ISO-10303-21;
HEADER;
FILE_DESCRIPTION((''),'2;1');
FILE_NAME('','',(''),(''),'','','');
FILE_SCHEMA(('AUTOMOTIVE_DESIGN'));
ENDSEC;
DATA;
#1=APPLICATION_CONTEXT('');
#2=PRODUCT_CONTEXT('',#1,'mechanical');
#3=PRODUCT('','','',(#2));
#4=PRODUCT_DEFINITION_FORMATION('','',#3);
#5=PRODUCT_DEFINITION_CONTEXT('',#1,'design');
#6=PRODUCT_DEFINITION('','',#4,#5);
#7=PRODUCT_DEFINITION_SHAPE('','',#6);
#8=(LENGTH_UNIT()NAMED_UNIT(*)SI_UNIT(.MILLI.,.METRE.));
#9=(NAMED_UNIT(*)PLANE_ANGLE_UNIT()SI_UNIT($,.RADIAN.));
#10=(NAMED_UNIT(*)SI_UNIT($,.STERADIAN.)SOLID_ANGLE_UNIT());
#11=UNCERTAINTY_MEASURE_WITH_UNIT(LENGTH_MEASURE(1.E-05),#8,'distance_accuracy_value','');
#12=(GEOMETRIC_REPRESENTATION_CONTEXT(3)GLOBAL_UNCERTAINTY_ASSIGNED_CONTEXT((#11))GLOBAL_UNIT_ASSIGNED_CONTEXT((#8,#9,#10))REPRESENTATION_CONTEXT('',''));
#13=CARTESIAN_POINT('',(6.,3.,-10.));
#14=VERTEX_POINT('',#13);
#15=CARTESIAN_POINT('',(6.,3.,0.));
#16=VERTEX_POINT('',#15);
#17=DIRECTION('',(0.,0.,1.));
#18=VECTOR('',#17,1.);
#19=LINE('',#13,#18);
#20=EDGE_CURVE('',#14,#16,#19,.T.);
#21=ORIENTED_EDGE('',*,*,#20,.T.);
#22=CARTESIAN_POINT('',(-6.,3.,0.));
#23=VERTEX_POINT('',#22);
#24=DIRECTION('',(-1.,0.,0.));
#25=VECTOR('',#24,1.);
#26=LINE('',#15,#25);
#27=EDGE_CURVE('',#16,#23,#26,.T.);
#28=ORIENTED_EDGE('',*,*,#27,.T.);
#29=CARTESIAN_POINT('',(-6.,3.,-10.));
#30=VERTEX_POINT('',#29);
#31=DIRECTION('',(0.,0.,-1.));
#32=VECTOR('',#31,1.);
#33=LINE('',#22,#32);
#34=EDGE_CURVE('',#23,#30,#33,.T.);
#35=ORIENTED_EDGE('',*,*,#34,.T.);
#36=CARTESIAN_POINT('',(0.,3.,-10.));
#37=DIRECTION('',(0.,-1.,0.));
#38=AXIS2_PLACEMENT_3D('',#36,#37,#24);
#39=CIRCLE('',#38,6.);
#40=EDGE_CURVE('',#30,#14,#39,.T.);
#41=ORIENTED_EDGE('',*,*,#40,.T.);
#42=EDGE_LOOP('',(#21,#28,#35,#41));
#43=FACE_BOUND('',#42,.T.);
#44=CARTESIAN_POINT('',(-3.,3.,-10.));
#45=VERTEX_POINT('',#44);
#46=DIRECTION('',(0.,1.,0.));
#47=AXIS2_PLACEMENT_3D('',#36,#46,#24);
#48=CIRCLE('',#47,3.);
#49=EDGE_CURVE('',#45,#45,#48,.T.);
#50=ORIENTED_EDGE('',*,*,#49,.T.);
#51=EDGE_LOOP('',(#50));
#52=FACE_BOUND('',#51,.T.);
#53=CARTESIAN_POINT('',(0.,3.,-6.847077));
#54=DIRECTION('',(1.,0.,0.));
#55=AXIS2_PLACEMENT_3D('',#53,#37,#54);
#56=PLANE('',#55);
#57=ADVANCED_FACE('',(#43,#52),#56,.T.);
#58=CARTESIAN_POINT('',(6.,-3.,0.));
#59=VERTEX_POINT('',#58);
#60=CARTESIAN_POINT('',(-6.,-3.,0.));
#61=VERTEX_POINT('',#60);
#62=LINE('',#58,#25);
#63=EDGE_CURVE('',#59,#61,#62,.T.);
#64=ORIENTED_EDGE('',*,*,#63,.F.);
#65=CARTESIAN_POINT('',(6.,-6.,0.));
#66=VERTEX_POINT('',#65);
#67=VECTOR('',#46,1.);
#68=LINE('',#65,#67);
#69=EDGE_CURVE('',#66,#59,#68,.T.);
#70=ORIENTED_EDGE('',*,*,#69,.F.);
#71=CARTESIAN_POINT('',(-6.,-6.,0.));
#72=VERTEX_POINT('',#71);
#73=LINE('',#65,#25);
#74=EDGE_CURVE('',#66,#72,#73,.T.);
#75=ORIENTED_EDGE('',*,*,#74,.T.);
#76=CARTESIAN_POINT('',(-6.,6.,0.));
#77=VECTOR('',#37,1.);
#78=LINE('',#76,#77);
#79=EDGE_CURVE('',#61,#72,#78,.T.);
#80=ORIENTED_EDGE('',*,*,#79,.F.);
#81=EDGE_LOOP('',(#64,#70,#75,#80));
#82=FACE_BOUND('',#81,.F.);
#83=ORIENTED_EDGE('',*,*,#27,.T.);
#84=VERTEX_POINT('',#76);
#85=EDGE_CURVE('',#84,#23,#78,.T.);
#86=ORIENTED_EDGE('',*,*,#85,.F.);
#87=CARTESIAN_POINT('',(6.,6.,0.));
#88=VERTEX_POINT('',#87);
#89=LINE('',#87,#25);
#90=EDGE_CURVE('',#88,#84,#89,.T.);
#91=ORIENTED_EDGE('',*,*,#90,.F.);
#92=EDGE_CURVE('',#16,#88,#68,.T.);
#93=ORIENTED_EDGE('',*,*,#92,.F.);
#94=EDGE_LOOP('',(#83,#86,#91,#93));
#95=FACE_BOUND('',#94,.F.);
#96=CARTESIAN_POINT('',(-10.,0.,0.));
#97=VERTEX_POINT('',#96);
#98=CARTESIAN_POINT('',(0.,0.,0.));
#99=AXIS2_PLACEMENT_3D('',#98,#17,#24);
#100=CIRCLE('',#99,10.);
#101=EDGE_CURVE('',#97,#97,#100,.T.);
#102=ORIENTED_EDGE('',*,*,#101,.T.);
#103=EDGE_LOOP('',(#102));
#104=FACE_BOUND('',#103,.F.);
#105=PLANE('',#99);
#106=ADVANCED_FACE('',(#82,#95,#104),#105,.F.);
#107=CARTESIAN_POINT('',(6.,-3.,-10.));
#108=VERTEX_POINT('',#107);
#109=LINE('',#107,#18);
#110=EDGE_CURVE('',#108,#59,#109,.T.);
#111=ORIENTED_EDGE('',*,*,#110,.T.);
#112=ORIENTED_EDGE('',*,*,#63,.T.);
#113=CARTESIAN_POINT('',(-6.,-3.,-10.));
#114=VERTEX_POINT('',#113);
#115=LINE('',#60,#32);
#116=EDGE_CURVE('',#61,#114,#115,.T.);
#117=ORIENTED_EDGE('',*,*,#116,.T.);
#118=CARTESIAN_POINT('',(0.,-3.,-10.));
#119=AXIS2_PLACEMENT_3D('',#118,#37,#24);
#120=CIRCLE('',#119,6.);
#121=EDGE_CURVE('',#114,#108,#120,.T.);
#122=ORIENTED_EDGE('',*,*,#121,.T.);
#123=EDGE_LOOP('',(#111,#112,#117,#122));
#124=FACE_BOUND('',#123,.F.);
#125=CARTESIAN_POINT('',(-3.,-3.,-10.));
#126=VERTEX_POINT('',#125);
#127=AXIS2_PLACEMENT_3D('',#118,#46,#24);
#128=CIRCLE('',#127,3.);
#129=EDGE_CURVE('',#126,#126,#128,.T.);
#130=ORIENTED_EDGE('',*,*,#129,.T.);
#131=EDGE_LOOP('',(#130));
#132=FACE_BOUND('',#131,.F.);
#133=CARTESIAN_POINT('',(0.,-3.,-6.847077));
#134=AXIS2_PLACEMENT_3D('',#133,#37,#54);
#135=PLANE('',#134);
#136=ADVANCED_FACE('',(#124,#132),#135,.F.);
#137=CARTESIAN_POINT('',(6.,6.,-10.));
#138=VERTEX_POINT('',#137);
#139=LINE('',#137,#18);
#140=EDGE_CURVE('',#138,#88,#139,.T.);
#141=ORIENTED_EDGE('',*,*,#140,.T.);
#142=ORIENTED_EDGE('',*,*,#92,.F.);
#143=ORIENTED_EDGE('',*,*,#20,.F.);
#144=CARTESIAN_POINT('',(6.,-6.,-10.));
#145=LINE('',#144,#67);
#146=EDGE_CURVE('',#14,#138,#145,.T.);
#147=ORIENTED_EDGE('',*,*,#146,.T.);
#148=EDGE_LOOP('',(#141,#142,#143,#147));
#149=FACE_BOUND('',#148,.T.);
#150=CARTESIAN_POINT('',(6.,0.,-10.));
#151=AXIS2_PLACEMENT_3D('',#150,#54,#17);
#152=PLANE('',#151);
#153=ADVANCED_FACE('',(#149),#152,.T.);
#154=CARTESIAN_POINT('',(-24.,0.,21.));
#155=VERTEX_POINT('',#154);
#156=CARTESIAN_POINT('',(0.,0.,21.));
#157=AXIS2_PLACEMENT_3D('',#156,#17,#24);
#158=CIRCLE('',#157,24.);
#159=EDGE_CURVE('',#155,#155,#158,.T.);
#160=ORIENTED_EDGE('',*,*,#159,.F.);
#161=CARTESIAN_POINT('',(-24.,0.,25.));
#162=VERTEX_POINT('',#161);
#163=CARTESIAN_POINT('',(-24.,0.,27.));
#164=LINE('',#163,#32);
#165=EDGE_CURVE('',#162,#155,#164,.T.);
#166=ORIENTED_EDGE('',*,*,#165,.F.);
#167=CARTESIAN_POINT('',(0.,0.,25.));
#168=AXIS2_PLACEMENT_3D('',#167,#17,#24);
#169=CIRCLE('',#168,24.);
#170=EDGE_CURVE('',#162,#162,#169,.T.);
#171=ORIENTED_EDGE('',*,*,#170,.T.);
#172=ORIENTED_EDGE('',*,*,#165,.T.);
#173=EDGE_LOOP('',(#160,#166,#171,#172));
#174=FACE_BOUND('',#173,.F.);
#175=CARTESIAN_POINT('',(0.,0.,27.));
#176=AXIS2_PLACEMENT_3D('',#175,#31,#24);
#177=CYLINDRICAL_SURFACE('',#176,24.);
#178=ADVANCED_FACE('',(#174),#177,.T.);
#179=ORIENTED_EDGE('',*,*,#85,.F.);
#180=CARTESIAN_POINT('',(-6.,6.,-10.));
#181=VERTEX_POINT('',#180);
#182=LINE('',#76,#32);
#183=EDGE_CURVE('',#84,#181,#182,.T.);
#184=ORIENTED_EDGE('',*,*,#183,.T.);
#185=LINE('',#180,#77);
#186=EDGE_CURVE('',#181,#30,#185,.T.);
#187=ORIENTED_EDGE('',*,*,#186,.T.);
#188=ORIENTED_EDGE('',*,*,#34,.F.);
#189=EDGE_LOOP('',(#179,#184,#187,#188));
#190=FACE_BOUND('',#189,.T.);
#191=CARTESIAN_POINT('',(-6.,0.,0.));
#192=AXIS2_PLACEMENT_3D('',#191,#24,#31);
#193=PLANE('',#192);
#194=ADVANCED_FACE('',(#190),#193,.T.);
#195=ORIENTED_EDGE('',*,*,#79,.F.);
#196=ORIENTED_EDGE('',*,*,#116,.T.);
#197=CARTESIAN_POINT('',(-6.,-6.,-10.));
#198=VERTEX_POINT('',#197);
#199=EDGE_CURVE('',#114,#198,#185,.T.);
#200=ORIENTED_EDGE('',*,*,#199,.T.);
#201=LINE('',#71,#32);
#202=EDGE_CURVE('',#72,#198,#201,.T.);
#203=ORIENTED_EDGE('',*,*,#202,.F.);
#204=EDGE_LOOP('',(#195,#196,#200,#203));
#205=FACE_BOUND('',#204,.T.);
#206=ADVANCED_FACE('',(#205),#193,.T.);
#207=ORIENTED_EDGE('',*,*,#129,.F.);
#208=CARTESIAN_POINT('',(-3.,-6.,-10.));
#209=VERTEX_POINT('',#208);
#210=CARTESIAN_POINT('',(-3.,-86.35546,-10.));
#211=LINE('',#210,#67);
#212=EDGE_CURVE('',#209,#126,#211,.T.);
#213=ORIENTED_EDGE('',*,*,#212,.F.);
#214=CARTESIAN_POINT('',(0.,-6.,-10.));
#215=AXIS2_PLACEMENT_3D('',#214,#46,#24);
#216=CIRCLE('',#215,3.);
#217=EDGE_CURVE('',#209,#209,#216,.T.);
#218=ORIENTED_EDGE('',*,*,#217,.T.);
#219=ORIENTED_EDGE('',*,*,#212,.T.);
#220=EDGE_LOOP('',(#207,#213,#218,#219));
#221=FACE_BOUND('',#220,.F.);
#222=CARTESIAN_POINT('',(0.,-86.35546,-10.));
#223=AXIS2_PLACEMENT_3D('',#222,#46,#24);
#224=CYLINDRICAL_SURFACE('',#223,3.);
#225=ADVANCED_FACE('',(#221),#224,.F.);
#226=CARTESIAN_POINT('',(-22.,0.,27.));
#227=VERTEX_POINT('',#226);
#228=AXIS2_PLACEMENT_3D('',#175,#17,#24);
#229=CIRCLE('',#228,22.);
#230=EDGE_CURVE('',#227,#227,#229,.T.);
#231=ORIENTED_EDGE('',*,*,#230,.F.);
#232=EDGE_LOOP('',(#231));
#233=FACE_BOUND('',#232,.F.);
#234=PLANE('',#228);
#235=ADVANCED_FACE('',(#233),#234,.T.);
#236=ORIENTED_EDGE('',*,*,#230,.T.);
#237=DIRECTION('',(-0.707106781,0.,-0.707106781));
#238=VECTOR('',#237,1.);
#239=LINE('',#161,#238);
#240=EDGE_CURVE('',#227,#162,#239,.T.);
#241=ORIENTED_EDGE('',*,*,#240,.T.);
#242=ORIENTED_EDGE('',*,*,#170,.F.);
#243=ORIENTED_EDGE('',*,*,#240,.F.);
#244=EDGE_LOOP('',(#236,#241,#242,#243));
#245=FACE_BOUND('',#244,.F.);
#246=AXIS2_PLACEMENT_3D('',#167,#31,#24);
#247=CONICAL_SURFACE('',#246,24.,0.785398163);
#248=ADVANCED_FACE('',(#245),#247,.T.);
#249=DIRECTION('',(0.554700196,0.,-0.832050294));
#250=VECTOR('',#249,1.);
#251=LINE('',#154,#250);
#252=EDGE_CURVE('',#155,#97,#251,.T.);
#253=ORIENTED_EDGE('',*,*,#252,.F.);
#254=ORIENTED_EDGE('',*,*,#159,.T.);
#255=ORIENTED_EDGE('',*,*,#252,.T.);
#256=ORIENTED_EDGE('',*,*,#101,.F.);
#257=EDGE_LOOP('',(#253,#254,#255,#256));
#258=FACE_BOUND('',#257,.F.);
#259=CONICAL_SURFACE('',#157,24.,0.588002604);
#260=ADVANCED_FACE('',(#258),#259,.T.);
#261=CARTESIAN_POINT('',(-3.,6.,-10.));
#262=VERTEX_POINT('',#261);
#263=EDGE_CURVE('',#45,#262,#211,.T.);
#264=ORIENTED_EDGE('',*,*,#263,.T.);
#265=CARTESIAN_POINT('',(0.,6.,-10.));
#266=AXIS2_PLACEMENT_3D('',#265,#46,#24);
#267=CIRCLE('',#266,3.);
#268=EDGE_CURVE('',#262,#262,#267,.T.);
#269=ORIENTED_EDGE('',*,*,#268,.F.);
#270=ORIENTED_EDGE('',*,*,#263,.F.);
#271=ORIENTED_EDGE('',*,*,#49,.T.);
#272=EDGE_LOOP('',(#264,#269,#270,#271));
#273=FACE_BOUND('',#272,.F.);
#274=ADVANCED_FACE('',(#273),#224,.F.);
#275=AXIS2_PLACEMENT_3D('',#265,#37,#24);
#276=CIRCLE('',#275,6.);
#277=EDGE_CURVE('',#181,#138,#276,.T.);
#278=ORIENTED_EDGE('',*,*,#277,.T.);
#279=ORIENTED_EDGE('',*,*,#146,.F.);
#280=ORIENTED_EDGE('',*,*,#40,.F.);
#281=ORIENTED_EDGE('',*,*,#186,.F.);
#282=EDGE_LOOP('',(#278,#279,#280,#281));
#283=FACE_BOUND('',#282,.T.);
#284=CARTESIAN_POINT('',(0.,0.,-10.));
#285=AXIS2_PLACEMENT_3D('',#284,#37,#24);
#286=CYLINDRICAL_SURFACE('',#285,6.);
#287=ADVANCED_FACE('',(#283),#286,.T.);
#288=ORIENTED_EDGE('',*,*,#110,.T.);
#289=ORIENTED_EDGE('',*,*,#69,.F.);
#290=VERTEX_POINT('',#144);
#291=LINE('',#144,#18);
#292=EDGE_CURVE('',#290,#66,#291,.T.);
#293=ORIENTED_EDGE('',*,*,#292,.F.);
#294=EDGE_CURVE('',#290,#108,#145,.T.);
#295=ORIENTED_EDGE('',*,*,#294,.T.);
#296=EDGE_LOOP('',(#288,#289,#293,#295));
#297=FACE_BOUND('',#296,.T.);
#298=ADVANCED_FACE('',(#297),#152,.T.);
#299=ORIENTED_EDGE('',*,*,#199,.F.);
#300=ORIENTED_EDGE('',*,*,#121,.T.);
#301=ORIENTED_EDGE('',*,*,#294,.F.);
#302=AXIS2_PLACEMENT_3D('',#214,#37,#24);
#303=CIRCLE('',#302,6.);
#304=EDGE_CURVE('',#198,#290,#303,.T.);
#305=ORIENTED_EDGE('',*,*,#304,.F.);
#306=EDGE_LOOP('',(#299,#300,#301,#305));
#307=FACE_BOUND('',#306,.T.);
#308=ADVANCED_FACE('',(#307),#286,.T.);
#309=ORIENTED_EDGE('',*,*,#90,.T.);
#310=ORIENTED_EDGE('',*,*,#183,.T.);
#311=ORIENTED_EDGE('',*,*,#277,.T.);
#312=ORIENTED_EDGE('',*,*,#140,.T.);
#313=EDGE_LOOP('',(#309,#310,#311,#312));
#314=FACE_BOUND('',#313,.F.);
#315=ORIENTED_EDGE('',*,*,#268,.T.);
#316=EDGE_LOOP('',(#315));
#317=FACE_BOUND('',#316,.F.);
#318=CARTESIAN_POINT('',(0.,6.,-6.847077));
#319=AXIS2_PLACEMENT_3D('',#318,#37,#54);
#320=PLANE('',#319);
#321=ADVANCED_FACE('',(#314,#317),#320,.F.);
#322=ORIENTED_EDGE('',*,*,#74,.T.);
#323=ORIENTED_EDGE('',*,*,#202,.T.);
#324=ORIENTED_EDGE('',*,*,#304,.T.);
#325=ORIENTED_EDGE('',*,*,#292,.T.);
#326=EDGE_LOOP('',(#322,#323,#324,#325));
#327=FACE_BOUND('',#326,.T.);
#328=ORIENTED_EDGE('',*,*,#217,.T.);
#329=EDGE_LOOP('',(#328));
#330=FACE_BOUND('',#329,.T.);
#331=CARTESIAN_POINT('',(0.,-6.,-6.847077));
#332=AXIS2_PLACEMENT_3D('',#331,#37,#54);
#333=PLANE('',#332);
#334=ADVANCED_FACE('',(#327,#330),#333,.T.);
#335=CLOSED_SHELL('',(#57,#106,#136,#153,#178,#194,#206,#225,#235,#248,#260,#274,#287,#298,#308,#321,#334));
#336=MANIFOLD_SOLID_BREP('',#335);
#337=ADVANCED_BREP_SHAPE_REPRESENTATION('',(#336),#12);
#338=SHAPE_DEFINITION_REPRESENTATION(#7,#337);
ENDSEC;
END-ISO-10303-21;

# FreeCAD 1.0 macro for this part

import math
import FreeCAD as App
import Part
import Sketcher
from FreeCAD import Vector


def edges_at(feature, points):
    """Names of the edges that pass closest to the given points."""
    edges = feature.Shape.Edges
    near = lambda p: min(range(len(edges)), key=lambda i: edges[i].distToShape(Part.Vertex(*p))[0])
    return sorted({f"Edge{near(p) + 1}" for p in points})

doc = App.newDocument("Part")
params = doc.addObject("Spreadsheet::Sheet", "Params")
for row, (alias, value) in enumerate([
    ("sketch1_width", "24 mm"),
    ("sketch1_width2", "10 mm"),
    ("sketch1_height", "27 mm"),
    ("sketch1_height2", "6 mm"),
    ("revolution_angle", "360 deg"),
    ("sketch2_radius", "6 mm"),
    ("sketch2_height", "10 mm"),
    ("pad1_length", "12 mm"),
    ("sketch3_radius", "6 mm"),
    ("sketch3_height", "10 mm"),
    ("pocket1_length", "6 mm"),
    ("chamfer_size", "2 mm"),
    ("sketch4_diameter", "6 mm"),
    ("hole_diameter", "6 mm"),
], start=1):
    params.set(f"A{row}", alias)
    params.set(f"B{row}", "=" + value)
    params.setAlias(f"B{row}", alias)

body = doc.addObject("PartDesign::Body", "Body")

# Sketch on XZ plane
sketch1 = body.newObject("Sketcher::SketchObject", "Sketch")
sketch1.AttachmentSupport = (doc.getObject("XZ_Plane"), [""])
sketch1.MapMode = "FlatFace"
sketch1.addGeometry(Part.LineSegment(Vector(0, 0, 0), Vector(0, 27, 0)), False)
sketch1.addGeometry(Part.LineSegment(Vector(0, 27, 0), Vector(-24, 27, 0)), False)
sketch1.addGeometry(Part.LineSegment(Vector(-24, 27, 0), Vector(-24, 21, 0)), False)
sketch1.addGeometry(Part.LineSegment(Vector(-24, 21, 0), Vector(-10, 0, 0)), False)
sketch1.addGeometry(Part.LineSegment(Vector(-10, 0, 0), Vector(0, 0, 0)), False)
sketch1.addConstraint(Sketcher.Constraint("Coincident", 0, 2, 1, 1))
sketch1.addConstraint(Sketcher.Constraint("Coincident", 1, 2, 2, 1))
sketch1.addConstraint(Sketcher.Constraint("Coincident", 2, 2, 3, 1))
sketch1.addConstraint(Sketcher.Constraint("Coincident", 3, 2, 4, 1))
sketch1.addConstraint(Sketcher.Constraint("Coincident", 4, 2, 0, 1))
sketch1.addConstraint(Sketcher.Constraint("Vertical", 0))
sketch1.addConstraint(Sketcher.Constraint("Horizontal", 1))
sketch1.addConstraint(Sketcher.Constraint("Vertical", 2))
sketch1.addConstraint(Sketcher.Constraint("Horizontal", 4))
sketch1.addConstraint(Sketcher.Constraint("Coincident", 4, 2, -1, 1))
sketch1.addConstraint(Sketcher.Constraint("DistanceX", 1, 2, 1, 1, 24.0))
sketch1.addConstraint(Sketcher.Constraint("DistanceX", 4, 1, 4, 2, 10.0))
sketch1.addConstraint(Sketcher.Constraint("DistanceY", 0, 1, 0, 2, 27.0))
sketch1.addConstraint(Sketcher.Constraint("DistanceY", 2, 2, 2, 1, 6.0))
sketch1.setExpression("Constraints[10]", "Params.sketch1_width")
sketch1.setExpression("Constraints[11]", "Params.sketch1_width2")
sketch1.setExpression("Constraints[12]", "Params.sketch1_height")
sketch1.setExpression("Constraints[13]", "Params.sketch1_height2")
revolution = body.newObject("PartDesign::Revolution", "Revolution")
revolution.Profile = sketch1
revolution.ReferenceAxis = (sketch1, ["V_Axis"])
revolution.setExpression("Angle", "Params.revolution_angle")

# Sketch on XZ plane
sketch2 = body.newObject("Sketcher::SketchObject", "Sketch001")
sketch2.AttachmentSupport = (doc.getObject("XZ_Plane"), [""])
sketch2.MapMode = "FlatFace"
sketch2.addGeometry(Part.LineSegment(Vector(6, 0, 0), Vector(-6, 0, 0)), False)
sketch2.addGeometry(Part.LineSegment(Vector(-6, 0, 0), Vector(-6, -10, 0)), False)
sketch2.addGeometry(Part.ArcOfCircle(Part.Circle(Vector(0, -10, 0), Vector(0, 0, 1), 6), math.radians(180), math.radians(360)), False)
sketch2.addGeometry(Part.LineSegment(Vector(6, -10, 0), Vector(6, 0, 0)), False)
sketch2.addConstraint(Sketcher.Constraint("Coincident", 0, 2, 1, 1))
sketch2.addConstraint(Sketcher.Constraint("Tangent", 1, 2, 2, 1))
sketch2.addConstraint(Sketcher.Constraint("Tangent", 2, 2, 3, 1))
sketch2.addConstraint(Sketcher.Constraint("Coincident", 3, 2, 0, 1))
sketch2.addConstraint(Sketcher.Constraint("Horizontal", 0))
sketch2.addConstraint(Sketcher.Constraint("Vertical", 1))
sketch2.addConstraint(Sketcher.Constraint("Vertical", 3))
sketch2.addConstraint(Sketcher.Constraint("Symmetric", 0, 2, 3, 2, -1, 1))
sketch2.addConstraint(Sketcher.Constraint("Radius", 2, 6.0))
sketch2.addConstraint(Sketcher.Constraint("DistanceY", 1, 2, 1, 1, 10.0))
sketch2.setExpression("Constraints[8]", "Params.sketch2_radius")
sketch2.setExpression("Constraints[9]", "Params.sketch2_height")
pad1 = body.newObject("PartDesign::Pad", "Pad")
pad1.Profile = sketch2
pad1.setExpression("Length", "Params.pad1_length")
pad1.Midplane = True

# Sketch on XZ plane
sketch3 = body.newObject("Sketcher::SketchObject", "Sketch002")
sketch3.AttachmentSupport = (doc.getObject("XZ_Plane"), [""])
sketch3.MapMode = "FlatFace"
sketch3.addGeometry(Part.LineSegment(Vector(6, 0, 0), Vector(-6, 0, 0)), False)
sketch3.addGeometry(Part.LineSegment(Vector(-6, 0, 0), Vector(-6, -10, 0)), False)
sketch3.addGeometry(Part.ArcOfCircle(Part.Circle(Vector(0, -10, 0), Vector(0, 0, 1), 6), math.radians(180), math.radians(360)), False)
sketch3.addGeometry(Part.LineSegment(Vector(6, -10, 0), Vector(6, 0, 0)), False)
sketch3.addConstraint(Sketcher.Constraint("Coincident", 0, 2, 1, 1))
sketch3.addConstraint(Sketcher.Constraint("Tangent", 1, 2, 2, 1))
sketch3.addConstraint(Sketcher.Constraint("Tangent", 2, 2, 3, 1))
sketch3.addConstraint(Sketcher.Constraint("Coincident", 3, 2, 0, 1))
sketch3.addConstraint(Sketcher.Constraint("Horizontal", 0))
sketch3.addConstraint(Sketcher.Constraint("Vertical", 1))
sketch3.addConstraint(Sketcher.Constraint("Vertical", 3))
sketch3.addConstraint(Sketcher.Constraint("Symmetric", 0, 2, 3, 2, -1, 1))
sketch3.addConstraint(Sketcher.Constraint("Radius", 2, 6.0))
sketch3.addConstraint(Sketcher.Constraint("DistanceY", 1, 2, 1, 1, 10.0))
sketch3.setExpression("Constraints[8]", "Params.sketch3_radius")
sketch3.setExpression("Constraints[9]", "Params.sketch3_height")
pocket1 = body.newObject("PartDesign::Pocket", "Pocket")
pocket1.Profile = sketch3
pocket1.setExpression("Length", "Params.pocket1_length")
pocket1.Midplane = True
doc.recompute()

chamfer = body.newObject("PartDesign::Chamfer", "Chamfer")
chamfer.Base = (pocket1, edges_at(pocket1, [(24, 0, 27)]))
chamfer.setExpression("Size", "Params.chamfer_size")

# Sketch on XZ plane
sketch4 = body.newObject("Sketcher::SketchObject", "Sketch003")
sketch4.AttachmentSupport = (doc.getObject("XZ_Plane"), [""])
sketch4.MapMode = "FlatFace"
sketch4.AttachmentOffset = App.Placement(Vector(0, 0, 6), App.Rotation())
sketch4.addGeometry(Part.Circle(Vector(0, -10, 0), Vector(0, 0, 1), 3), False)
sketch4.addConstraint(Sketcher.Constraint("PointOnObject", 0, 3, -2))
sketch4.addConstraint(Sketcher.Constraint("Diameter", 0, 6.0))
sketch4.addConstraint(Sketcher.Constraint("DistanceY", 0, 3, -1, 1, 10.0))
sketch4.setExpression("Constraints[1]", "Params.sketch4_diameter")
doc.recompute()
hole = body.newObject("PartDesign::Hole", "Hole")
hole.Profile = sketch4
hole.ThreadType = "None"
hole.setExpression("Diameter", "Params.hole_diameter")
hole.DepthType = "ThroughAll"

doc.recompute()
